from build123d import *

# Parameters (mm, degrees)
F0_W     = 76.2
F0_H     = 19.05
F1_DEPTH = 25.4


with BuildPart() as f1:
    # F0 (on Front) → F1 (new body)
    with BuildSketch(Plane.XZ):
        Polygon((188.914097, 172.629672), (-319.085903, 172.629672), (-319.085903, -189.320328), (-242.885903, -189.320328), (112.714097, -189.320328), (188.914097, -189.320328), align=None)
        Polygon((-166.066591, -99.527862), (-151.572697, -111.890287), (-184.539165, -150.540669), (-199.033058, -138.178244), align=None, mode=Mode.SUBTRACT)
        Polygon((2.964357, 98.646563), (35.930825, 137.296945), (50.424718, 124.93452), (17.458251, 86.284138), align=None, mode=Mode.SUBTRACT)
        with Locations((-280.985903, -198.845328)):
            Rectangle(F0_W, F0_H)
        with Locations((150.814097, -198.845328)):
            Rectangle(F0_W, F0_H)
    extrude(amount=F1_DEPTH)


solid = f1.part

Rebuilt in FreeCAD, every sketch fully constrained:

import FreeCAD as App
import Part
import Sketcher

V = App.Vector
Q = App.Units.Quantity

doc = App.newDocument("Part")
body = doc.addObject("PartDesign::Body", "Body")

# Sketch on XZ plane
sketch1 = body.newObject("Sketcher::SketchObject", "Sketch")
sketch1.AttachmentSupport = (doc.getObject("XZ_Plane"), [""])
sketch1.MapMode = "FlatFace"
sketch1.addGeometry(Part.LineSegment(V(189, 173, 0), V(-319, 173, 0)), False)
sketch1.addGeometry(Part.LineSegment(V(-319, 173, 0), V(-319, -208, 0)), False)
sketch1.addGeometry(Part.LineSegment(V(-319, -208, 0), V(-243, -208, 0)), False)
sketch1.addGeometry(Part.LineSegment(V(-243, -208, 0), V(-243, -189, 0)), False)
sketch1.addGeometry(Part.LineSegment(V(-243, -189, 0), V(113, -189, 0)), False)
sketch1.addGeometry(Part.LineSegment(V(113, -189, 0), V(113, -208, 0)), False)
sketch1.addGeometry(Part.LineSegment(V(113, -208, 0), V(189, -208, 0)), False)
sketch1.addGeometry(Part.LineSegment(V(189, -208, 0), V(189, 173, 0)), False)
sketch1.addGeometry(Part.LineSegment(V(-199, -138, 0), V(-166, -100, 0)), False)
sketch1.addGeometry(Part.LineSegment(V(-166, -100, 0), V(-152, -112, 0)), False)
sketch1.addGeometry(Part.LineSegment(V(-152, -112, 0), V(-185, -151, 0)), False)
sketch1.addGeometry(Part.LineSegment(V(-185, -151, 0), V(-199, -138, 0)), False)
sketch1.addGeometry(Part.LineSegment(V(17, 86, 0), V(3, 99, 0)), False)
sketch1.addGeometry(Part.LineSegment(V(3, 99, 0), V(36, 137, 0)), False)
sketch1.addGeometry(Part.LineSegment(V(36, 137, 0), V(50, 125, 0)), False)
sketch1.addGeometry(Part.LineSegment(V(50, 125, 0), V(17, 86, 0)), False)
sketch1.addConstraint(Sketcher.Constraint("Coincident", 0, 2, 1, 1))
sketch1.addConstraint(Sketcher.Constraint("Coincident", 1, 2, 2, 1))
sketch1.addConstraint(Sketcher.Constraint("Coincident", 2, 2, 3, 1))
sketch1.addConstraint(Sketcher.Constraint("Coincident", 3, 2, 4, 1))
sketch1.addConstraint(Sketcher.Constraint("Coincident", 4, 2, 5, 1))
sketch1.addConstraint(Sketcher.Constraint("Coincident", 5, 2, 6, 1))
sketch1.addConstraint(Sketcher.Constraint("Coincident", 6, 2, 7, 1))
sketch1.addConstraint(Sketcher.Constraint("Coincident", 7, 2, 0, 1))
sketch1.addConstraint(Sketcher.Constraint("Coincident", 8, 2, 9, 1))
sketch1.addConstraint(Sketcher.Constraint("Coincident", 9, 2, 10, 1))
sketch1.addConstraint(Sketcher.Constraint("Coincident", 10, 2, 11, 1))
sketch1.addConstraint(Sketcher.Constraint("Coincident", 11, 2, 8, 1))
sketch1.addConstraint(Sketcher.Constraint("Coincident", 12, 2, 13, 1))
sketch1.addConstraint(Sketcher.Constraint("Coincident", 13, 2, 14, 1))
sketch1.addConstraint(Sketcher.Constraint("Coincident", 14, 2, 15, 1))
sketch1.addConstraint(Sketcher.Constraint("Coincident", 15, 2, 12, 1))
sketch1.addConstraint(Sketcher.Constraint("Horizontal", 0))
sketch1.addConstraint(Sketcher.Constraint("Vertical", 1))
sketch1.addConstraint(Sketcher.Constraint("Horizontal", 2))
sketch1.addConstraint(Sketcher.Constraint("Vertical", 3))
sketch1.addConstraint(Sketcher.Constraint("Horizontal", 4))
sketch1.addConstraint(Sketcher.Constraint("Vertical", 5))
sketch1.addConstraint(Sketcher.Constraint("Horizontal", 6))
sketch1.addConstraint(Sketcher.Constraint("Vertical", 7))
sketch1.addConstraint(Sketcher.Constraint("Perpendicular", 8, 9))
sketch1.addConstraint(Sketcher.Constraint("Perpendicular", 9, 10))
sketch1.addConstraint(Sketcher.Constraint("Perpendicular", 10, 11))
sketch1.addConstraint(Sketcher.Constraint("Parallel", 11, 12))
sketch1.addConstraint(Sketcher.Constraint("Perpendicular", 12, 13))
sketch1.addConstraint(Sketcher.Constraint("Perpendicular", 13, 14))
sketch1.addConstraint(Sketcher.Constraint("Perpendicular", 14, 15))
sketch1.addConstraint(Sketcher.Constraint("Horizontal", 2, 2, 5, 2))
sketch1.addConstraint(Sketcher.Constraint("Equal", 2, 6))
sketch1.addConstraint(Sketcher.Constraint("Equal", 11, 12))
sketch1.addConstraint(Sketcher.Constraint("Equal", 10, 13))
sketch1.addConstraint(Sketcher.Constraint("DistanceX", 0, 2, 0, 1, Q("20 in")))
sketch1.addConstraint(Sketcher.Constraint("DistanceX", 2, 1, 2, 2, Q("3 in")))
sketch1.addConstraint(Sketcher.Constraint("DistanceY", 1, 2, 1, 1, Q("15 in")))
sketch1.addConstraint(Sketcher.Constraint("Distance", 8, Q("2 in")))
sketch1.addConstraint(Sketcher.Constraint("DistanceY", 3, 1, 3, 2, Q("0.75 in")))
sketch1.addConstraint(Sketcher.Constraint("Distance", 9, Q("0.75 in")))
sketch1.addConstraint(Sketcher.Constraint("DistanceY", -1, 1, 0, 2, 172.629672))
sketch1.addConstraint(Sketcher.Constraint("DistanceX", 8, 2, -1, 1, 166.066591))
sketch1.addConstraint(Sketcher.Constraint("DistanceY", 8, 2, -1, 1, 99.527862))
sketch1.addConstraint(Sketcher.Constraint("DistanceY", 10, 2, -1, 1, 150.540669))
sketch1.addConstraint(Sketcher.Constraint("DistanceY", -1, 1, 14, 2, 124.93452))
sketch1.addConstraint(Sketcher.Constraint("DistanceX", -1, 1, 15, 2, 17.458251))
sketch1.addConstraint(Sketcher.Constraint("DistanceX", 1, 2, 8, 2, 153.019312))
pad1 = body.newObject("PartDesign::Pad", "Pad")
pad1.Profile = sketch1
pad1.Length = Q("1 in")

doc.recompute()
